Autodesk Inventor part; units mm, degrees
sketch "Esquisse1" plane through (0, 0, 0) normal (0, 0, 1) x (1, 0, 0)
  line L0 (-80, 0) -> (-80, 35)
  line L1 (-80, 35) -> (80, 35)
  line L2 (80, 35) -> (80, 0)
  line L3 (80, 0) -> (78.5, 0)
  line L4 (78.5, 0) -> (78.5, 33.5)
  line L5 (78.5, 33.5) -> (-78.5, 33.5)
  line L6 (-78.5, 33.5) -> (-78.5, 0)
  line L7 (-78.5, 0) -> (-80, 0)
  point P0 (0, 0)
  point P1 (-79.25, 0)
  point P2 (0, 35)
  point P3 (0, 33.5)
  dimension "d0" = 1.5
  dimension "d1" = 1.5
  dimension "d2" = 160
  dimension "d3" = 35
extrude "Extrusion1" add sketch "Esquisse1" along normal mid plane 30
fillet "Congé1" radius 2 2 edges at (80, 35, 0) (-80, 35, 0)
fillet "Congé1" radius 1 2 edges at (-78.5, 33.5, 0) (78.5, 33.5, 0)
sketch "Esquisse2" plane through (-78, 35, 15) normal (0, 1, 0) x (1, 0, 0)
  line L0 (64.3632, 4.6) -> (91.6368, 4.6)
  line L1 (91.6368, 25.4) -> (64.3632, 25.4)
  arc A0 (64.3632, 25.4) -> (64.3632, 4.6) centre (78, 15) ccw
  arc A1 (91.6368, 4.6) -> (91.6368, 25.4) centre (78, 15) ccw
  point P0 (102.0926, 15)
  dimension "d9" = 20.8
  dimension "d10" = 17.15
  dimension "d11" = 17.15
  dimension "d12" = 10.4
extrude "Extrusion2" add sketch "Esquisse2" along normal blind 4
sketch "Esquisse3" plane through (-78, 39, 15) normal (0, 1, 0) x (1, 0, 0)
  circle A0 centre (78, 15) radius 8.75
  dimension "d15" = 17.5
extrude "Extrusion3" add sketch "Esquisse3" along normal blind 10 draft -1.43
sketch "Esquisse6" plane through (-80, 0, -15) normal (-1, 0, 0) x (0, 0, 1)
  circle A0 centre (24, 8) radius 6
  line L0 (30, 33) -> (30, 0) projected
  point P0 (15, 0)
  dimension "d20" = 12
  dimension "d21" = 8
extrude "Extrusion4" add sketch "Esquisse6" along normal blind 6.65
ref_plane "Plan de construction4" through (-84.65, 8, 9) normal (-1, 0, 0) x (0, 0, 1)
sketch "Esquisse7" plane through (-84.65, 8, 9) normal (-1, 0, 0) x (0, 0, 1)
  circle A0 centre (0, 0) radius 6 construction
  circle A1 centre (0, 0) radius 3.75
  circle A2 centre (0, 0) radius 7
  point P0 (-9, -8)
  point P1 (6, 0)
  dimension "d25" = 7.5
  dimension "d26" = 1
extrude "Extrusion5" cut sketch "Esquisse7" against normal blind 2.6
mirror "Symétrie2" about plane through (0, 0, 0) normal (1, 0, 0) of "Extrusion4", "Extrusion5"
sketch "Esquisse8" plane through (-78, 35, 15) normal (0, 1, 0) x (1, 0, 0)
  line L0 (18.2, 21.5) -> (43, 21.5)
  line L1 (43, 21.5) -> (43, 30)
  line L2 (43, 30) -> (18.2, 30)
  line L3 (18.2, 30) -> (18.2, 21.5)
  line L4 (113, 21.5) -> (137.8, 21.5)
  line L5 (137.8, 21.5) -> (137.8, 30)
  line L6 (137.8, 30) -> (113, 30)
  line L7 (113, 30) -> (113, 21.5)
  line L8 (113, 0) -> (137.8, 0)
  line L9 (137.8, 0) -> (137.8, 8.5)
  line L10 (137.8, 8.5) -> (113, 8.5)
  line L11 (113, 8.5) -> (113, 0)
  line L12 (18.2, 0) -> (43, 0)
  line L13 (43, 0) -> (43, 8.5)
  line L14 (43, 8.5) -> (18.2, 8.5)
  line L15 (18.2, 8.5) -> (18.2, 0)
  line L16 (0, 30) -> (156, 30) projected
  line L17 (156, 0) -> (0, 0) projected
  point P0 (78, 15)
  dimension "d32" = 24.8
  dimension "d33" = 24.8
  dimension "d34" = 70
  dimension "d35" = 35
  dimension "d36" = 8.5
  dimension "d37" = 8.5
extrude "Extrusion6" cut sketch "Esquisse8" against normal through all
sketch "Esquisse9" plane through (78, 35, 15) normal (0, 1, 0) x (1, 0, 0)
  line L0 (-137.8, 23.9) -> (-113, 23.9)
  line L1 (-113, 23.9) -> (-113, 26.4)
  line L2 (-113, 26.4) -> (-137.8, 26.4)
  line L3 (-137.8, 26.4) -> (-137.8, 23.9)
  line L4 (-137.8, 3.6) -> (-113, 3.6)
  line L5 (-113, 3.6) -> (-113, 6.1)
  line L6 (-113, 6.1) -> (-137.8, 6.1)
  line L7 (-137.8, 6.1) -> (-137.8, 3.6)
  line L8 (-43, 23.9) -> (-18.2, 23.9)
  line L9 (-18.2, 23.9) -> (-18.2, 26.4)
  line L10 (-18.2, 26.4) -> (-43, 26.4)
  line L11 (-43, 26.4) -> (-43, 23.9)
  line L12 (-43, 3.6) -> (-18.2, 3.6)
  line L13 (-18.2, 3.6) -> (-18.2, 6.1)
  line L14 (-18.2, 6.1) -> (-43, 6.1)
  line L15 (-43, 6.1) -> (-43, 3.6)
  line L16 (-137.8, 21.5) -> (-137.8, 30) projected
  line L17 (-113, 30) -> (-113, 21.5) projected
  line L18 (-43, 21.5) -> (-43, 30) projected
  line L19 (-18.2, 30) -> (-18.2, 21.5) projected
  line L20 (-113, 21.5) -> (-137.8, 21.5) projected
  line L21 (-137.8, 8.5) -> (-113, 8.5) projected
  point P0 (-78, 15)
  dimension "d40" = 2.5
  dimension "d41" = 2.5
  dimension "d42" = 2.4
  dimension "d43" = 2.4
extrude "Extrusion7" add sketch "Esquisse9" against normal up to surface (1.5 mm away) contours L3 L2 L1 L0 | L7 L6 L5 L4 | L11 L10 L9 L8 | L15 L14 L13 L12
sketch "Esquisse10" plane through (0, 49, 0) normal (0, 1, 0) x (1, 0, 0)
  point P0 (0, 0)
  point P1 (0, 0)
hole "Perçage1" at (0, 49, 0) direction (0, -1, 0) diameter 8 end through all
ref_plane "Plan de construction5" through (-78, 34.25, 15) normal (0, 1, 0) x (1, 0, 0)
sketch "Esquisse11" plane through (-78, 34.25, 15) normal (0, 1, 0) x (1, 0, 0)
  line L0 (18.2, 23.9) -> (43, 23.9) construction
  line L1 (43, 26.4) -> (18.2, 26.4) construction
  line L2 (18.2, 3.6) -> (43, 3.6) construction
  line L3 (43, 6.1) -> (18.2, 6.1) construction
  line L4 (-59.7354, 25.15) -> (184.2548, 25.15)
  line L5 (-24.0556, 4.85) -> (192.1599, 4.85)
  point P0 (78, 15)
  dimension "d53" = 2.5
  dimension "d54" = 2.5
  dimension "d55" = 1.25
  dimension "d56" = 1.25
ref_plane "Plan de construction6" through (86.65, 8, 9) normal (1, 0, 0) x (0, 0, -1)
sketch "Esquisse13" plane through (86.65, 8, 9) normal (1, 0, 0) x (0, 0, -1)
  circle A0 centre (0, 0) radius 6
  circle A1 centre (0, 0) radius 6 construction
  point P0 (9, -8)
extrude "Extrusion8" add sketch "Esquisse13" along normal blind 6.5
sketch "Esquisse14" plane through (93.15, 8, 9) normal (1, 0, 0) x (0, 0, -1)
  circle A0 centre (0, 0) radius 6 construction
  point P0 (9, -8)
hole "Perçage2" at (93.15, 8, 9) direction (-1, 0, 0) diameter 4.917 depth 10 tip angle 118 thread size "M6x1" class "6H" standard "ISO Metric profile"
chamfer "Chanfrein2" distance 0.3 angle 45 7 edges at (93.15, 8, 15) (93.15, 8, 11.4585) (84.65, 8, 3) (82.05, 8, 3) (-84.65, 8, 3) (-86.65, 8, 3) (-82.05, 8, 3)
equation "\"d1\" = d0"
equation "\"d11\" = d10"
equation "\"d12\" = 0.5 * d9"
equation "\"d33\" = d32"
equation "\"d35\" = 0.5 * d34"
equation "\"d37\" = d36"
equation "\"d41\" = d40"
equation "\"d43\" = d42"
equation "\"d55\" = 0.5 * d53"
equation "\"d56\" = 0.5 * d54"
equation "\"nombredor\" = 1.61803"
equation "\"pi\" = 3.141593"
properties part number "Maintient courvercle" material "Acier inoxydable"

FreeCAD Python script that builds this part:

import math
import FreeCAD as App
import Part
import Sketcher


def edges_at(feature, points):
    """Names of the edges that pass closest to the given points."""
    edges = feature.Shape.Edges
    near = lambda p: min(range(len(edges)), key=lambda i: edges[i].distToShape(Part.Vertex(*p))[0])
    return sorted({f"Edge{near(p) + 1}" for p in points})

doc = App.newDocument("Part")
body = doc.addObject("PartDesign::Body", "Body")

sketch1 = doc.addObject("Sketcher::SketchObject", "Sketch")
body.addObject(sketch1)
sketch1.AttachmentSupport = (doc.XY_Plane, [""])
sketch1.MapMode = "FlatFace"
sketch1.addGeometry([
    Part.LineSegment(App.Vector(-80, 35, 0), App.Vector(-80, 0, 0)),
    Part.LineSegment(App.Vector(-80, 0, 0), App.Vector(-78.5, 0, 0)),
    Part.LineSegment(App.Vector(-78.5, 0, 0), App.Vector(-78.5, 33.5, 0)),
    Part.LineSegment(App.Vector(-78.5, 33.5, 0), App.Vector(78.5, 33.5, 0)),
    Part.LineSegment(App.Vector(78.5, 33.5, 0), App.Vector(78.5, 0, 0)),
    Part.LineSegment(App.Vector(78.5, 0, 0), App.Vector(80, 0, 0)),
    Part.LineSegment(App.Vector(80, 0, 0), App.Vector(80, 35, 0)),
    Part.LineSegment(App.Vector(80, 35, 0), App.Vector(-80, 35, 0)),
], False)
sketch1.addConstraint([
    Sketcher.Constraint("Coincident", 0, 2, 1, 1),
    Sketcher.Constraint("Coincident", 1, 2, 2, 1),
    Sketcher.Constraint("Coincident", 2, 2, 3, 1),
    Sketcher.Constraint("Coincident", 3, 2, 4, 1),
    Sketcher.Constraint("Coincident", 4, 2, 5, 1),
    Sketcher.Constraint("Coincident", 5, 2, 6, 1),
    Sketcher.Constraint("Coincident", 6, 2, 7, 1),
    Sketcher.Constraint("Coincident", 7, 2, 0, 1),
    Sketcher.Constraint("Vertical", 0),
    Sketcher.Constraint("Horizontal", 1),
    Sketcher.Constraint("Vertical", 2),
    Sketcher.Constraint("Horizontal", 3),
    Sketcher.Constraint("Vertical", 4),
    Sketcher.Constraint("Horizontal", 5),
    Sketcher.Constraint("Vertical", 6),
    Sketcher.Constraint("Horizontal", 7),
    Sketcher.Constraint("Symmetric", 1, 2, 4, 2, -1, 1),
    Sketcher.Constraint("Symmetric", 0, 2, 5, 2, -2),
    Sketcher.Constraint("DistanceX", 7, 2, 7, 1, 160.0),
    Sketcher.Constraint("DistanceY", 0, 2, 0, 1, 35.0),
    Sketcher.Constraint("DistanceX", 1, 1, 1, 2, 1.5),
    Sketcher.Constraint("DistanceY", 3, 2, 6, 2, 1.5),
])
pad1 = doc.addObject("PartDesign::Pad", "Pad")
body.addObject(pad1)
pad1.Profile = sketch1
pad1.Length = 30
pad1.Midplane = True
doc.recompute()

fillet = doc.addObject("PartDesign::Fillet", "Fillet")
body.addObject(fillet)
fillet.Base = (pad1, edges_at(pad1, [(80, 35, 0), (-80, 35, 0)]))
fillet.Radius = 2
doc.recompute()

fillet2 = doc.addObject("PartDesign::Fillet", "Fillet001")
body.addObject(fillet2)
fillet2.Base = (fillet, edges_at(fillet, [(-78.5, 33.5, 0), (78.5, 33.5, 0)]))
fillet2.Radius = 1

sketch2 = doc.addObject("Sketcher::SketchObject", "Sketch001")
body.addObject(sketch2)
sketch2.AttachmentSupport = (doc.XZ_Plane, [""])
sketch2.MapMode = "FlatFace"
sketch2.AttachmentOffset = App.Placement(App.Vector(0, 0, -35), App.Rotation())
sketch2.addGeometry([
    Part.ArcOfCircle(Part.Circle(App.Vector(0, 0, 0), App.Vector(0, 0, 1), 17), math.radians(143), math.radians(217)),
    Part.LineSegment(App.Vector(-14, 10, 0), App.Vector(14, 10, 0)),
    Part.ArcOfCircle(Part.Circle(App.Vector(0, 0, 0), App.Vector(0, 0, 1), 17), math.radians(-37), math.radians(37)),
    Part.LineSegment(App.Vector(14, -10, 0), App.Vector(-14, -10, 0)),
], False)
sketch2.addConstraint([
    Sketcher.Constraint("Coincident", 0, 1, 1, 1),
    Sketcher.Constraint("Coincident", 1, 2, 2, 2),
    Sketcher.Constraint("Coincident", 2, 1, 3, 1),
    Sketcher.Constraint("Coincident", 3, 2, 0, 2),
    Sketcher.Constraint("Horizontal", 1),
    Sketcher.Constraint("Horizontal", 3),
    Sketcher.Constraint("Coincident", 0, 3, -1, 1),
    Sketcher.Constraint("Coincident", 2, 3, -1, 1),
    Sketcher.Constraint("Equal", 0, 2),
    Sketcher.Constraint("Vertical", 1, 2, 2, 1),
    Sketcher.Constraint("Radius", 0, 17.15),
    Sketcher.Constraint("DistanceY", -1, 1, 0, 1, 10.4),
])
pad2 = doc.addObject("PartDesign::Pad", "Pad001")
body.addObject(pad2)
pad2.Profile = sketch2
pad2.Length = 4
pad2.Reversed = True

sketch3 = doc.addObject("Sketcher::SketchObject", "Sketch002")
body.addObject(sketch3)
sketch3.AttachmentSupport = (doc.XZ_Plane, [""])
sketch3.MapMode = "FlatFace"
sketch3.AttachmentOffset = App.Placement(App.Vector(0, 0, -39), App.Rotation())
sketch3.addGeometry(Part.Circle(App.Vector(0, 0, 0), App.Vector(0, 0, 1), 9), False)
sketch3.addConstraint([
    Sketcher.Constraint("Coincident", 0, 3, -1, 1),
    Sketcher.Constraint("Diameter", 0, 17.5),
])
pad3 = doc.addObject("PartDesign::Pad", "Pad002")
body.addObject(pad3)
pad3.Profile = sketch3
pad3.Length = 10
pad3.Reversed = True
pad3.TaperAngle = -1.43

sketch4 = doc.addObject("Sketcher::SketchObject", "Sketch003")
body.addObject(sketch4)
sketch4.AttachmentSupport = (doc.YZ_Plane, [""])
sketch4.MapMode = "FlatFace"
sketch4.AttachmentOffset = App.Placement(App.Vector(0, 0, -80), App.Rotation())
sketch4.addGeometry(Part.Circle(App.Vector(8, 9, 0), App.Vector(0, 0, 1), 6), False)
sketch4.addConstraint([
    Sketcher.Constraint("Diameter", 0, 12.0),
    Sketcher.Constraint("DistanceX", -1, 1, 0, 3, 8.0),
    Sketcher.Constraint("DistanceY", -1, 1, 0, 3, 9.0),
])
pad4 = doc.addObject("PartDesign::Pad", "Pad003")
body.addObject(pad4)
pad4.Profile = sketch4
pad4.Length = 6.65
pad4.Reversed = True

sketch5 = doc.addObject("Sketcher::SketchObject", "Sketch004")
body.addObject(sketch5)
sketch5.AttachmentSupport = (doc.YZ_Plane, [""])
sketch5.MapMode = "FlatFace"
sketch5.AttachmentOffset = App.Placement(App.Vector(0, 0, -84.65), App.Rotation())
sketch5.addGeometry([
    Part.Circle(App.Vector(8, 9, 0), App.Vector(0, 0, 1), 7),
    Part.Circle(App.Vector(8, 9, 0), App.Vector(0, 0, 1), 3.8),
], False)
sketch5.addConstraint([
    Sketcher.Constraint("Coincident", 1, 3, 0, 3),
    Sketcher.Constraint("Diameter", 1, 7.5),
    Sketcher.Constraint("Diameter", 0, 14.0),
    Sketcher.Constraint("DistanceX", -1, 1, 0, 3, 8.0),
    Sketcher.Constraint("DistanceY", -1, 1, 0, 3, 9.0),
])
pocket1 = doc.addObject("PartDesign::Pocket", "Pocket")
body.addObject(pocket1)
pocket1.Profile = sketch5
pocket1.Length = 2.6
pocket1.Reversed = True
doc.recompute()

mirrored = doc.addObject("PartDesign::Mirrored", "Mirrored")
body.addObject(mirrored)
mirrored.Originals = [pad4, pocket1]
mirrored.MirrorPlane = (doc.YZ_Plane, [""])
body.Tip = mirrored

sketch6 = doc.addObject("Sketcher::SketchObject", "Sketch005")
body.addObject(sketch6)
sketch6.AttachmentSupport = (doc.XZ_Plane, [""])
sketch6.MapMode = "FlatFace"
sketch6.AttachmentOffset = App.Placement(App.Vector(0, 0, -35), App.Rotation())
sketch6.addGeometry([
    Part.LineSegment(App.Vector(-60, -15, 0), App.Vector(-60, -6, 0)),
    Part.LineSegment(App.Vector(-60, -6, 0), App.Vector(-35, -6, 0)),
    Part.LineSegment(App.Vector(-35, -6, 0), App.Vector(-35, -15, 0)),
    Part.LineSegment(App.Vector(-35, -15, 0), App.Vector(-60, -15, 0)),
    Part.LineSegment(App.Vector(60, -15, 0), App.Vector(35, -15, 0)),
    Part.LineSegment(App.Vector(35, -15, 0), App.Vector(35, -6, 0)),
    Part.LineSegment(App.Vector(35, -6, 0), App.Vector(60, -6, 0)),
    Part.LineSegment(App.Vector(60, -6, 0), App.Vector(60, -15, 0)),
    Part.LineSegment(App.Vector(35, 6, 0), App.Vector(35, 15, 0)),
    Part.LineSegment(App.Vector(35, 15, 0), App.Vector(60, 15, 0)),
    Part.LineSegment(App.Vector(60, 15, 0), App.Vector(60, 6, 0)),
    Part.LineSegment(App.Vector(60, 6, 0), App.Vector(35, 6, 0)),
    Part.LineSegment(App.Vector(-60, 15, 0), App.Vector(-35, 15, 0)),
    Part.LineSegment(App.Vector(-35, 15, 0), App.Vector(-35, 6, 0)),
    Part.LineSegment(App.Vector(-35, 6, 0), App.Vector(-60, 6, 0)),
    Part.LineSegment(App.Vector(-60, 6, 0), App.Vector(-60, 15, 0)),
], False)
sketch6.addConstraint([
    Sketcher.Constraint("Coincident", 0, 2, 1, 1),
    Sketcher.Constraint("Coincident", 1, 2, 2, 1),
    Sketcher.Constraint("Coincident", 2, 2, 3, 1),
    Sketcher.Constraint("Coincident", 3, 2, 0, 1),
    Sketcher.Constraint("Coincident", 4, 2, 5, 1),
    Sketcher.Constraint("Coincident", 5, 2, 6, 1),
    Sketcher.Constraint("Coincident", 6, 2, 7, 1),
    Sketcher.Constraint("Coincident", 7, 2, 4, 1),
    Sketcher.Constraint("Coincident", 8, 2, 9, 1),
    Sketcher.Constraint("Coincident", 9, 2, 10, 1),
    Sketcher.Constraint("Coincident", 10, 2, 11, 1),
    Sketcher.Constraint("Coincident", 11, 2, 8, 1),
    Sketcher.Constraint("Coincident", 12, 2, 13, 1),
    Sketcher.Constraint("Coincident", 13, 2, 14, 1),
    Sketcher.Constraint("Coincident", 14, 2, 15, 1),
    Sketcher.Constraint("Coincident", 15, 2, 12, 1),
    Sketcher.Constraint("Vertical", 0),
    Sketcher.Constraint("Horizontal", 1),
    Sketcher.Constraint("Vertical", 2),
    Sketcher.Constraint("Horizontal", 3),
    Sketcher.Constraint("Horizontal", 4),
    Sketcher.Constraint("Vertical", 5),
    Sketcher.Constraint("Horizontal", 6),
    Sketcher.Constraint("Vertical", 7),
    Sketcher.Constraint("Vertical", 8),
    Sketcher.Constraint("Horizontal", 9),
    Sketcher.Constraint("Vertical", 10),
    Sketcher.Constraint("Horizontal", 11),
    Sketcher.Constraint("Horizontal", 12),
    Sketcher.Constraint("Vertical", 13),
    Sketcher.Constraint("Horizontal", 14),
    Sketcher.Constraint("Vertical", 15),
    Sketcher.Constraint("Symmetric", 2, 2, 8, 2, -1, 1),
    Sketcher.Constraint("Symmetric", 0, 2, 10, 2, -1, 1),
    Sketcher.Constraint("Symmetric", 4, 2, 12, 2, -1, 1),
    Sketcher.Constraint("Symmetric", 6, 2, 14, 2, -1, 1),
    Sketcher.Constraint("Symmetric", 2, 2, 4, 2, -2),
    Sketcher.Constraint("Symmetric", 0, 2, 6, 2, -2),
    Sketcher.Constraint("DistanceX", 1, 1, 1, 2, 24.8),
    Sketcher.Constraint("DistanceY", 0, 1, 0, 2, 8.5),
    Sketcher.Constraint("DistanceX", 1, 2, -1, 1, 35.0),
    Sketcher.Constraint("DistanceY", 2, 2, -1, 1, 15.0),
])
pocket2 = doc.addObject("PartDesign::Pocket", "Pocket001")
body.addObject(pocket2)
pocket2.Profile = sketch6
pocket2.Type = "ThroughAll"
pocket2.Reversed = True

sketch7 = doc.addObject("Sketcher::SketchObject", "Sketch006")
body.addObject(sketch7)
sketch7.AttachmentSupport = (doc.XZ_Plane, [""])
sketch7.MapMode = "FlatFace"
sketch7.AttachmentOffset = App.Placement(App.Vector(0, 0, -35), App.Rotation())
sketch7.addGeometry([
    Part.LineSegment(App.Vector(-59.8, -11.4, 0), App.Vector(-59.8, -8.9, 0)),
    Part.LineSegment(App.Vector(-59.8, -8.9, 0), App.Vector(-35, -8.9, 0)),
    Part.LineSegment(App.Vector(-35, -8.9, 0), App.Vector(-35, -11.4, 0)),
    Part.LineSegment(App.Vector(-35, -11.4, 0), App.Vector(-59.8, -11.4, 0)),
    Part.LineSegment(App.Vector(-59.8, 8.9, 0), App.Vector(-59.8, 11.4, 0)),
    Part.LineSegment(App.Vector(-59.8, 11.4, 0), App.Vector(-35, 11.4, 0)),
    Part.LineSegment(App.Vector(-35, 11.4, 0), App.Vector(-35, 8.9, 0)),
    Part.LineSegment(App.Vector(-35, 8.9, 0), App.Vector(-59.8, 8.9, 0)),
    Part.LineSegment(App.Vector(35, -11.4, 0), App.Vector(35, -8.9, 0)),
    Part.LineSegment(App.Vector(35, -8.9, 0), App.Vector(59.8, -8.9, 0)),
    Part.LineSegment(App.Vector(59.8, -8.9, 0), App.Vector(59.8, -11.4, 0)),
    Part.LineSegment(App.Vector(59.8, -11.4, 0), App.Vector(35, -11.4, 0)),
    Part.LineSegment(App.Vector(35, 8.9, 0), App.Vector(35, 11.4, 0)),
    Part.LineSegment(App.Vector(35, 11.4, 0), App.Vector(59.8, 11.4, 0)),
    Part.LineSegment(App.Vector(59.8, 11.4, 0), App.Vector(59.8, 8.9, 0)),
    Part.LineSegment(App.Vector(59.8, 8.9, 0), App.Vector(35, 8.9, 0)),
], False)
sketch7.addConstraint([
    Sketcher.Constraint("Coincident", 0, 2, 1, 1),
    Sketcher.Constraint("Coincident", 1, 2, 2, 1),
    Sketcher.Constraint("Coincident", 2, 2, 3, 1),
    Sketcher.Constraint("Coincident", 3, 2, 0, 1),
    Sketcher.Constraint("Coincident", 4, 2, 5, 1),
    Sketcher.Constraint("Coincident", 5, 2, 6, 1),
    Sketcher.Constraint("Coincident", 6, 2, 7, 1),
    Sketcher.Constraint("Coincident", 7, 2, 4, 1),
    Sketcher.Constraint("Coincident", 8, 2, 9, 1),
    Sketcher.Constraint("Coincident", 9, 2, 10, 1),
    Sketcher.Constraint("Coincident", 10, 2, 11, 1),
    Sketcher.Constraint("Coincident", 11, 2, 8, 1),
    Sketcher.Constraint("Coincident", 12, 2, 13, 1),
    Sketcher.Constraint("Coincident", 13, 2, 14, 1),
    Sketcher.Constraint("Coincident", 14, 2, 15, 1),
    Sketcher.Constraint("Coincident", 15, 2, 12, 1),
    Sketcher.Constraint("Vertical", 0),
    Sketcher.Constraint("Horizontal", 1),
    Sketcher.Constraint("Vertical", 2),
    Sketcher.Constraint("Horizontal", 3),
    Sketcher.Constraint("Vertical", 4),
    Sketcher.Constraint("Horizontal", 5),
    Sketcher.Constraint("Vertical", 6),
    Sketcher.Constraint("Horizontal", 7),
    Sketcher.Constraint("Vertical", 8),
    Sketcher.Constraint("Horizontal", 9),
    Sketcher.Constraint("Vertical", 10),
    Sketcher.Constraint("Horizontal", 11),
    Sketcher.Constraint("Vertical", 12),
    Sketcher.Constraint("Horizontal", 13),
    Sketcher.Constraint("Vertical", 14),
    Sketcher.Constraint("Horizontal", 15),
    Sketcher.Constraint("Symmetric", 6, 2, 8, 2, -1, 1),
    Sketcher.Constraint("Symmetric", 4, 2, 10, 2, -1, 1),
    Sketcher.Constraint("Symmetric", 2, 2, 12, 2, -1, 1),
    Sketcher.Constraint("Symmetric", 0, 2, 14, 2, -1, 1),
    Sketcher.Constraint("Symmetric", 1, 2, 8, 2, -2),
    Sketcher.Constraint("Symmetric", 3, 2, 10, 2, -2),
    Sketcher.Constraint("DistanceY", 0, 1, 0, 2, 2.5),
    Sketcher.Constraint("DistanceX", 1, 1, 1, 2, 24.8),
    Sketcher.Constraint("DistanceX", 1, 2, -1, 1, 35.0),
    Sketcher.Constraint("DistanceY", 0, 2, -1, 1, 8.9),
])
pad5 = doc.addObject("PartDesign::Pad", "Pad004")
body.addObject(pad5)
pad5.Profile = sketch7
pad5.Length = 1.5

sketch8 = doc.addObject("Sketcher::SketchObject", "Sketch007")
body.addObject(sketch8)
sketch8.AttachmentSupport = (doc.XZ_Plane, [""])
sketch8.MapMode = "FlatFace"
sketch8.AttachmentOffset = App.Placement(App.Vector(0, 0, -49), App.Rotation())
sketch8.addGeometry(Part.Circle(App.Vector(0, 0, 0), App.Vector(0, 0, 1), 4), False)
sketch8.addConstraint([
    Sketcher.Constraint("Coincident", 0, 3, -1, 1),
    Sketcher.Constraint("Diameter", 0, 8.0),
])
doc.recompute()
hole = doc.addObject("PartDesign::Hole", "Hole")
body.addObject(hole)
hole.Profile = sketch8
hole.ThreadType = "None"
hole.Diameter = 8
hole.DepthType = "ThroughAll"
hole.Reversed = True

sketch9 = doc.addObject("Sketcher::SketchObject", "Sketch008")
body.addObject(sketch9)
sketch9.AttachmentSupport = (doc.YZ_Plane, [""])
sketch9.MapMode = "FlatFace"
sketch9.AttachmentOffset = App.Placement(App.Vector(0, 0, 86.65), App.Rotation())
sketch9.addGeometry(Part.Circle(App.Vector(8, 9, 0), App.Vector(0, 0, 1), 6), False)
sketch9.addConstraint([
    Sketcher.Constraint("Diameter", 0, 12.0),
    Sketcher.Constraint("DistanceX", -1, 1, 0, 3, 8.0),
    Sketcher.Constraint("DistanceY", -1, 1, 0, 3, 9.0),
])
pad6 = doc.addObject("PartDesign::Pad", "Pad005")
body.addObject(pad6)
pad6.Profile = sketch9
pad6.Length = 6.5

sketch10 = doc.addObject("Sketcher::SketchObject", "Sketch009")
body.addObject(sketch10)
sketch10.AttachmentSupport = (doc.YZ_Plane, [""])
sketch10.MapMode = "FlatFace"
sketch10.AttachmentOffset = App.Placement(App.Vector(0, 0, 93.15), App.Rotation())
sketch10.addGeometry(Part.Circle(App.Vector(8, 9, 0), App.Vector(0, 0, 1), 2.5), False)
sketch10.addConstraint([
    Sketcher.Constraint("Diameter", 0, 4.917),
    Sketcher.Constraint("DistanceX", -1, 1, 0, 3, 8.0),
    Sketcher.Constraint("DistanceY", -1, 1, 0, 3, 9.0),
])
doc.recompute()
hole2 = doc.addObject("PartDesign::Hole", "Hole001")
body.addObject(hole2)
hole2.Profile = sketch10
hole2.ThreadType = "None"
hole2.Diameter = 4.917
hole2.DepthType = "Dimension"
hole2.Depth = 10
hole2.DrillPoint = "Angled"
hole2.DrillPointAngle = 118
doc.recompute()

chamfer = doc.addObject("PartDesign::Chamfer", "Chamfer")
body.addObject(chamfer)
chamfer.Base = (hole2, edges_at(hole2, [
    (93.15, 8, 15),
    (93.15, 8, 11.459),
    (84.65, 8, 3),
    (82.05, 8, 3),
    (-84.65, 8, 3),
    (-86.65, 8, 3),
    (-82.05, 8, 3),
]))
chamfer.Size = 0.3

doc.recompute()
